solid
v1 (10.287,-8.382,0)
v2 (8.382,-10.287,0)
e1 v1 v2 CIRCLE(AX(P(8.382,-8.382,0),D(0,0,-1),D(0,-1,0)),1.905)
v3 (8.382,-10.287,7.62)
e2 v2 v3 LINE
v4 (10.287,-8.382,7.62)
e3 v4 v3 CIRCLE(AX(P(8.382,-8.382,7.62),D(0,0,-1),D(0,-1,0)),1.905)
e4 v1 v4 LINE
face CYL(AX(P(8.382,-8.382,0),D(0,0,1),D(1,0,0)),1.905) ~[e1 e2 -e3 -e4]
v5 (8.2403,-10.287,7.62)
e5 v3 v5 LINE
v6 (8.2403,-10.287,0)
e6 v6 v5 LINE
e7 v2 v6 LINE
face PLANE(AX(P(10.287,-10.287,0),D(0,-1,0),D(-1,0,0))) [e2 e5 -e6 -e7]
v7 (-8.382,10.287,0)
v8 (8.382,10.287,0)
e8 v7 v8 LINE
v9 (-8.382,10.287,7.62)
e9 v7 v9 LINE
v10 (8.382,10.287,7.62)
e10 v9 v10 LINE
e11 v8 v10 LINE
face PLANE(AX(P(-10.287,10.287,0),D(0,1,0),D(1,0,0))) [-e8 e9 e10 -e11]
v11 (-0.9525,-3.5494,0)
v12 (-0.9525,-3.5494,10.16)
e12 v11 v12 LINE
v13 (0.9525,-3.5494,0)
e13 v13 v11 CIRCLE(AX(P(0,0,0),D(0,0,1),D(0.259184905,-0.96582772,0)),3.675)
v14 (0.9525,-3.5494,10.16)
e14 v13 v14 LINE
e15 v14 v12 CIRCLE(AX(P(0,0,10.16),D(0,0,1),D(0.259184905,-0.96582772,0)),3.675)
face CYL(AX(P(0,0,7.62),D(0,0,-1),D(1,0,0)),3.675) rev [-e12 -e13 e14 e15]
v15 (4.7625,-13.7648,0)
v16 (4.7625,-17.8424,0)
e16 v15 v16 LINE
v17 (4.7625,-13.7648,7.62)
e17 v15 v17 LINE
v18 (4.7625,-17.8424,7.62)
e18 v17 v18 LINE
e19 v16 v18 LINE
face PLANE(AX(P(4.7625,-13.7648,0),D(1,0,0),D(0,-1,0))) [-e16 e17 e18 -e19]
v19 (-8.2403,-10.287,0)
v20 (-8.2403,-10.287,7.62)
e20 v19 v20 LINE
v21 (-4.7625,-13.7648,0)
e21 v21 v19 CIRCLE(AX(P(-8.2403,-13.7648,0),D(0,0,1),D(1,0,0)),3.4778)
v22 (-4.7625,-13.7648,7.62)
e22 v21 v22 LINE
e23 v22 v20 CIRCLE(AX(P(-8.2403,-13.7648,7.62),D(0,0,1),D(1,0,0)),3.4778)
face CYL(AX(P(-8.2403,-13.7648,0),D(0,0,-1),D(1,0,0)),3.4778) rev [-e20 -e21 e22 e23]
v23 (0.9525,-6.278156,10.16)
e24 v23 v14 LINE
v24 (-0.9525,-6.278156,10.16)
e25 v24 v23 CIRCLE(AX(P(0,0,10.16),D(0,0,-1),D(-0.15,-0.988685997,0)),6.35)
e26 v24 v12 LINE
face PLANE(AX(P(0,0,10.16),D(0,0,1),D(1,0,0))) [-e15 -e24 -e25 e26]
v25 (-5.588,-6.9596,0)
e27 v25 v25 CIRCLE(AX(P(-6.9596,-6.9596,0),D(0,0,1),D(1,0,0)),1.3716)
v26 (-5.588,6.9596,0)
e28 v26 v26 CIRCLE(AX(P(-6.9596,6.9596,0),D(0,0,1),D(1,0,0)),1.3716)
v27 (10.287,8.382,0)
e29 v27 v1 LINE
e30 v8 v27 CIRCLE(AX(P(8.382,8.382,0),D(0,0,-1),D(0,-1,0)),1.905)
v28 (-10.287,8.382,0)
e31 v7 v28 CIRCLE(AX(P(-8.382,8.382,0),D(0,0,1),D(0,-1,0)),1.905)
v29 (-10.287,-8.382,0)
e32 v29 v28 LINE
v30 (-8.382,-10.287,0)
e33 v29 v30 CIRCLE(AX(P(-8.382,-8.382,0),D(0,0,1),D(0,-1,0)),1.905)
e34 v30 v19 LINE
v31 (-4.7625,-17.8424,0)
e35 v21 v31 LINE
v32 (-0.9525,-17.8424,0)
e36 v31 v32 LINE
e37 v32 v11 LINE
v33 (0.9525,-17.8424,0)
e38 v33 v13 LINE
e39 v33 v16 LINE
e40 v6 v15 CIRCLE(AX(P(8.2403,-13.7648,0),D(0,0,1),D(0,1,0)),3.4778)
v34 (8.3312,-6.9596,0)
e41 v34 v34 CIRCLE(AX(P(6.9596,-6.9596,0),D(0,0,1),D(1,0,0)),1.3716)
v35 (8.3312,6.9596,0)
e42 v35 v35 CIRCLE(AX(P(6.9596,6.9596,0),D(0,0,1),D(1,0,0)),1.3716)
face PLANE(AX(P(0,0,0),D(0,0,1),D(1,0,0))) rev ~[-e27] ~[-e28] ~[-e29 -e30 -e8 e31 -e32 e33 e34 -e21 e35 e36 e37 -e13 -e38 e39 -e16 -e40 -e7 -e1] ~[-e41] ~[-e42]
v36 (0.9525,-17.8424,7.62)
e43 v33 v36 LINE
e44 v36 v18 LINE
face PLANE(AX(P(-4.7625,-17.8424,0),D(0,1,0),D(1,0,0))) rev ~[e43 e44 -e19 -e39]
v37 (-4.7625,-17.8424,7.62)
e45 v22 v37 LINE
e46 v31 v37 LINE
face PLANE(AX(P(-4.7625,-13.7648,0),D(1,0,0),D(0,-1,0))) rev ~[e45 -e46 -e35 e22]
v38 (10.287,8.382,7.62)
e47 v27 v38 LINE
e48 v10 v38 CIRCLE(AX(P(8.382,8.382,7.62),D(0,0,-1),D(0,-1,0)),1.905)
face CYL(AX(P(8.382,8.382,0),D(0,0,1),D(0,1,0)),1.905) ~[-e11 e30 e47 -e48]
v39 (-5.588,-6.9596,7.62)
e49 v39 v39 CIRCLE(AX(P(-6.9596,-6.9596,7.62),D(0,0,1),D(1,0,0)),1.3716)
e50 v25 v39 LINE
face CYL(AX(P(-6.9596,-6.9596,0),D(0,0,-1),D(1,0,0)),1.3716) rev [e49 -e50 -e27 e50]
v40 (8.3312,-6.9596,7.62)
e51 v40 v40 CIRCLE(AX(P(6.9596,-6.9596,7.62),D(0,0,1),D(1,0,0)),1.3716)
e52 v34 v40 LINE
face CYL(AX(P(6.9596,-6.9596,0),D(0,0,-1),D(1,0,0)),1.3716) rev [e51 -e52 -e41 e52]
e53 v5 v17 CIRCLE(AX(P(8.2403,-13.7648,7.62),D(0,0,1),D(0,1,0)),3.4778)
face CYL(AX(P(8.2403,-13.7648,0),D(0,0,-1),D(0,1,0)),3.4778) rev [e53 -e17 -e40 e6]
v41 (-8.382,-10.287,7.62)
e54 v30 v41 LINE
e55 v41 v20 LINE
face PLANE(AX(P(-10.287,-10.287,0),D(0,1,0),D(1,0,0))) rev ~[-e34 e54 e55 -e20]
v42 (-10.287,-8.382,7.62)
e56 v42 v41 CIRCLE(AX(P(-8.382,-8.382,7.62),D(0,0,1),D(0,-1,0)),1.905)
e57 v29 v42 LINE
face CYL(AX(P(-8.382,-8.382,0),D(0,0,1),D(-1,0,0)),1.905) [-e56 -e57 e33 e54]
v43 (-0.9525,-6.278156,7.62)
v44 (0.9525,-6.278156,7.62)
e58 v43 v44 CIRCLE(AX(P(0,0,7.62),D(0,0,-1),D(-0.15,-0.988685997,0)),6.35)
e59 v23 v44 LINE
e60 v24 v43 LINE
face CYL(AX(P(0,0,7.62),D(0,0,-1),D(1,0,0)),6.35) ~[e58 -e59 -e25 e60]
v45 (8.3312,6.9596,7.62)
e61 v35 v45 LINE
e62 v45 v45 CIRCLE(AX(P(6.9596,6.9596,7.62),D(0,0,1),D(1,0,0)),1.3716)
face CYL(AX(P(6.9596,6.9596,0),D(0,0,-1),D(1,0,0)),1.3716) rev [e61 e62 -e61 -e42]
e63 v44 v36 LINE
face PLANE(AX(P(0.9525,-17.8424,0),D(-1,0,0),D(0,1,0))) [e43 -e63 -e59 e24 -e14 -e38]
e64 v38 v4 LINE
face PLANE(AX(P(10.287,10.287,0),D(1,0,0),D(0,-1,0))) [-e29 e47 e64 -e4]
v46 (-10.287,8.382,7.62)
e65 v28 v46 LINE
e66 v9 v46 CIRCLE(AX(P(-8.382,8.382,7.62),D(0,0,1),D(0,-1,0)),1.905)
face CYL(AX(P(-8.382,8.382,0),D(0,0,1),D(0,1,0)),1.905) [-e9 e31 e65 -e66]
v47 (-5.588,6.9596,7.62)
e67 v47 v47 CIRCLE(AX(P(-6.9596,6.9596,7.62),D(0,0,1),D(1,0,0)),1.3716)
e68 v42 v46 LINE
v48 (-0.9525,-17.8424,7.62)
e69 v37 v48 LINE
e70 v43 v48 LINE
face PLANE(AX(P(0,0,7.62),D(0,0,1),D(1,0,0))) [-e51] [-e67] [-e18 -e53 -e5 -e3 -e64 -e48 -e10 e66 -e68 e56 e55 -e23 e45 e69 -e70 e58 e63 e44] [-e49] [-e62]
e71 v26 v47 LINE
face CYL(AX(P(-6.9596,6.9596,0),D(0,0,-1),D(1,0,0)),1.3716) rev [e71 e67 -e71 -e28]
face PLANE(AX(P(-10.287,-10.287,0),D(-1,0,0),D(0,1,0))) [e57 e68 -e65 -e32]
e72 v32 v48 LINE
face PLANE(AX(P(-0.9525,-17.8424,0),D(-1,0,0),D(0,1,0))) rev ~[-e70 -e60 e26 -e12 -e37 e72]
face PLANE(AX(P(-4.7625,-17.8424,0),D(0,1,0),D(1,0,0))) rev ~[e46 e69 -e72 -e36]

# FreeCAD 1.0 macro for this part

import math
import FreeCAD as App
import Part
import Sketcher

V = App.Vector
Q = App.Units.Quantity


def edges_at(feature, points):
    """Names of the edges that pass closest to the given points."""
    edges = feature.Shape.Edges
    near = lambda p: min(range(len(edges)), key=lambda i: edges[i].distToShape(Part.Vertex(*p))[0])
    return sorted({f"Edge{near(p) + 1}" for p in points})

doc = App.newDocument("Part")
body = doc.addObject("PartDesign::Body", "Body")

sketch1 = body.newObject("Sketcher::SketchObject", "Sketch")
sketch1.AttachmentSupport = (doc.getObject("XY_Plane"), [""])
sketch1.MapMode = "FlatFace"
sketch1.addGeometry(Part.LineSegment(V(10.287, 10.287, 0), V(-10.287, 10.287, 0)), False)
sketch1.addGeometry(Part.LineSegment(V(-10.287, 10.287, 0), V(-10.287, -10.287, 0)), False)
sketch1.addGeometry(Part.LineSegment(V(-10.287, -10.287, 0), V(-8.2403, -10.287, 0)), False)
sketch1.addGeometry(Part.ArcOfCircle(Part.Circle(V(-8.2403, -13.7648, 0), V(0, 0, 1), 3.4778), math.radians(0), math.radians(90)), False)
sketch1.addGeometry(Part.LineSegment(V(-4.7625, -13.7648, 0), V(-4.7625, -17.8424, 0)), False)
sketch1.addGeometry(Part.LineSegment(V(-4.7625, -17.8424, 0), V(4.7625, -17.8424, 0)), False)
sketch1.addGeometry(Part.LineSegment(V(4.7625, -17.8424, 0), V(4.7625, -13.7648, 0)), False)
sketch1.addGeometry(Part.ArcOfCircle(Part.Circle(V(8.2403, -13.7648, 0), V(0, 0, 1), 3.4778), math.radians(90), math.radians(180)), False)
sketch1.addGeometry(Part.LineSegment(V(8.2403, -10.287, 0), V(10.287, -10.287, 0)), False)
sketch1.addGeometry(Part.LineSegment(V(10.287, -10.287, 0), V(10.287, 10.287, 0)), False)
sketch1.addGeometry(Part.Circle(V(0, 0, 0), V(0, 0, 1), 3.675), False)
sketch1.addGeometry(Part.Circle(V(-6.9596, -6.9596, 0), V(0, 0, 1), 1.3716), False)
sketch1.addGeometry(Part.Circle(V(6.9596, -6.9596, 0), V(0, 0, 1), 1.3716), False)
sketch1.addGeometry(Part.Circle(V(-6.9596, 6.9596, 0), V(0, 0, 1), 1.3716), False)
sketch1.addGeometry(Part.Circle(V(6.9596, 6.9596, 0), V(0, 0, 1), 1.3716), False)
sketch1.addConstraint(Sketcher.Constraint("Coincident", 0, 2, 1, 1))
sketch1.addConstraint(Sketcher.Constraint("Coincident", 1, 2, 2, 1))
sketch1.addConstraint(Sketcher.Constraint("Tangent", 2, 2, 3, 2))
sketch1.addConstraint(Sketcher.Constraint("Tangent", 3, 1, 4, 1))
sketch1.addConstraint(Sketcher.Constraint("Coincident", 4, 2, 5, 1))
sketch1.addConstraint(Sketcher.Constraint("Coincident", 5, 2, 6, 1))
sketch1.addConstraint(Sketcher.Constraint("Tangent", 6, 2, 7, 2))
sketch1.addConstraint(Sketcher.Constraint("Tangent", 7, 1, 8, 1))
sketch1.addConstraint(Sketcher.Constraint("Coincident", 8, 2, 9, 1))
sketch1.addConstraint(Sketcher.Constraint("Coincident", 9, 2, 0, 1))
sketch1.addConstraint(Sketcher.Constraint("Horizontal", 0))
sketch1.addConstraint(Sketcher.Constraint("Vertical", 1))
sketch1.addConstraint(Sketcher.Constraint("Horizontal", 2))
sketch1.addConstraint(Sketcher.Constraint("Vertical", 4))
sketch1.addConstraint(Sketcher.Constraint("Horizontal", 5))
sketch1.addConstraint(Sketcher.Constraint("Vertical", 6))
sketch1.addConstraint(Sketcher.Constraint("Horizontal", 8))
sketch1.addConstraint(Sketcher.Constraint("Vertical", 9))
sketch1.addConstraint(Sketcher.Constraint("Coincident", 10, 3, -1, 1))
sketch1.addConstraint(Sketcher.Constraint("Equal", 3, 7))
sketch1.addConstraint(Sketcher.Constraint("Equal", 11, 12))
sketch1.addConstraint(Sketcher.Constraint("Equal", 12, 13))
sketch1.addConstraint(Sketcher.Constraint("Equal", 13, 14))
sketch1.addConstraint(Sketcher.Constraint("Symmetric", 12, 3, 13, 3, -1, 1))
sketch1.addConstraint(Sketcher.Constraint("Symmetric", 11, 3, 14, 3, -1, 1))
sketch1.addConstraint(Sketcher.Constraint("Symmetric", 0, 2, 8, 2, -1, 1))
sketch1.addConstraint(Sketcher.Constraint("Symmetric", 3, 3, 7, 3, -2))
sketch1.addConstraint(Sketcher.Constraint("Symmetric", 11, 3, 12, 3, -2))
sketch1.addConstraint(Sketcher.Constraint("Equal", 0, 1))
sketch1.addConstraint(Sketcher.Constraint("Diameter", 11, Q("0.108 in")))
sketch1.addConstraint(Sketcher.Constraint("DistanceX", 0, 2, 0, 1, Q("0.81 in")))
sketch1.addConstraint(Sketcher.Constraint("Diameter", 10, Q("7.35 mm")))
sketch1.addConstraint(Sketcher.Constraint("DistanceX", 5, 1, 5, 2, Q("0.375 in")))
sketch1.addConstraint(Sketcher.Constraint("DistanceX", 11, 3, 12, 3, Q("0.548 in")))
sketch1.addConstraint(Sketcher.Constraint("DistanceY", 11, 3, 13, 3, Q("0.548 in")))
sketch1.addConstraint(Sketcher.Constraint("Radius", 3, Q("3.4778 mm")))
sketch1.addConstraint(Sketcher.Constraint("DistanceY", 4, 2, 4, 1, Q("4.0776 mm")))
pad1 = body.newObject("PartDesign::Pad", "Pad")
pad1.Profile = sketch1
pad1.Length = Q("0.3 in")

sketch2 = body.newObject("Sketcher::SketchObject", "Sketch001")
sketch2.AttachmentSupport = (doc.getObject("XY_Plane"), [""])
sketch2.MapMode = "FlatFace"
sketch2.AttachmentOffset = App.Placement(V(0, 0, 0.3 * 25.4), App.Rotation())
sketch2.addGeometry(Part.Circle(V(0, 0, 0), V(0, 0, 1), 6.35), False)
sketch2.addGeometry(Part.Circle(V(0, 0, 0), V(0, 0, 1), 3.675), False)
sketch2.addConstraint(Sketcher.Constraint("Coincident", 0, 3, -1, 1))
sketch2.addConstraint(Sketcher.Constraint("Coincident", 1, 3, -1, 1))
sketch2.addConstraint(Sketcher.Constraint("Diameter", 0, Q("0.5 in")))
sketch2.addConstraint(Sketcher.Constraint("Diameter", 1, Q("7.35 mm")))
pad2 = body.newObject("PartDesign::Pad", "Pad001")
pad2.Profile = sketch2
pad2.Length = Q("0.1 in")
doc.recompute()

fillet = body.newObject("PartDesign::Fillet", "Fillet")
fillet.Base = (pad2, edges_at(pad2, [(10.287, 10.287, 3.81)]))
fillet.Radius = Q("0.075 in")
doc.recompute()

fillet2 = body.newObject("PartDesign::Fillet", "Fillet001")
fillet2.Base = (fillet, edges_at(fillet, [(-10.287, 10.287, 3.81)]))
fillet2.Radius = Q("0.075 in")
doc.recompute()

fillet3 = body.newObject("PartDesign::Fillet", "Fillet002")
fillet3.Base = (fillet2, edges_at(fillet2, [(-10.287, -10.287, 3.81)]))
fillet3.Radius = Q("0.075 in")
doc.recompute()

fillet4 = body.newObject("PartDesign::Fillet", "Fillet003")
fillet4.Base = (fillet3, edges_at(fillet3, [(10.287, -10.287, 3.81)]))
fillet4.Radius = Q("0.075 in")

sketch3 = body.newObject("Sketcher::SketchObject", "Sketch002")
sketch3.AttachmentSupport = (doc.getObject("XY_Plane"), [""])
sketch3.MapMode = "FlatFace"
sketch3.addGeometry(Part.LineSegment(V(0.9525, -3.5494, 0), V(0.9525, -17.8424, 0)), False)
sketch3.addGeometry(Part.LineSegment(V(0.9525, -17.8424, 0), V(-0.9525, -17.8424, 0)), False)
sketch3.addGeometry(Part.LineSegment(V(-0.9525, -17.8424, 0), V(-0.9525, -3.5494, 0)), False)
sketch3.addGeometry(Part.ArcOfCircle(Part.Circle(V(0, 0, 0), V(0, 0, 1), 3.675), math.radians(-105.021703), math.radians(-74.978297)), False)
sketch3.addConstraint(Sketcher.Constraint("Coincident", 0, 2, 1, 1))
sketch3.addConstraint(Sketcher.Constraint("Coincident", 1, 2, 2, 1))
sketch3.addConstraint(Sketcher.Constraint("Coincident", 2, 2, 3, 1))
sketch3.addConstraint(Sketcher.Constraint("Coincident", 3, 2, 0, 1))
sketch3.addConstraint(Sketcher.Constraint("Vertical", 0))
sketch3.addConstraint(Sketcher.Constraint("Horizontal", 1))
sketch3.addConstraint(Sketcher.Constraint("Vertical", 2))
sketch3.addConstraint(Sketcher.Constraint("Coincident", 3, 3, -1, 1))
sketch3.addConstraint(Sketcher.Constraint("Horizontal", 2, 2, 3, 2))
sketch3.addConstraint(Sketcher.Constraint("DistanceX", 1, 2, 1, 1, Q("0.075 in")))
sketch3.addConstraint(Sketcher.Constraint("Radius", 3, Q("3.675 mm")))
sketch3.addConstraint(Sketcher.Constraint("DistanceY", 0, 2, 0, 1, Q("14.293 mm")))
pocket1 = body.newObject("PartDesign::Pocket", "Pocket")
pocket1.Profile = sketch3
pocket1.Length = Q("0.4 in")
pocket1.Reversed = True

doc.recompute()
